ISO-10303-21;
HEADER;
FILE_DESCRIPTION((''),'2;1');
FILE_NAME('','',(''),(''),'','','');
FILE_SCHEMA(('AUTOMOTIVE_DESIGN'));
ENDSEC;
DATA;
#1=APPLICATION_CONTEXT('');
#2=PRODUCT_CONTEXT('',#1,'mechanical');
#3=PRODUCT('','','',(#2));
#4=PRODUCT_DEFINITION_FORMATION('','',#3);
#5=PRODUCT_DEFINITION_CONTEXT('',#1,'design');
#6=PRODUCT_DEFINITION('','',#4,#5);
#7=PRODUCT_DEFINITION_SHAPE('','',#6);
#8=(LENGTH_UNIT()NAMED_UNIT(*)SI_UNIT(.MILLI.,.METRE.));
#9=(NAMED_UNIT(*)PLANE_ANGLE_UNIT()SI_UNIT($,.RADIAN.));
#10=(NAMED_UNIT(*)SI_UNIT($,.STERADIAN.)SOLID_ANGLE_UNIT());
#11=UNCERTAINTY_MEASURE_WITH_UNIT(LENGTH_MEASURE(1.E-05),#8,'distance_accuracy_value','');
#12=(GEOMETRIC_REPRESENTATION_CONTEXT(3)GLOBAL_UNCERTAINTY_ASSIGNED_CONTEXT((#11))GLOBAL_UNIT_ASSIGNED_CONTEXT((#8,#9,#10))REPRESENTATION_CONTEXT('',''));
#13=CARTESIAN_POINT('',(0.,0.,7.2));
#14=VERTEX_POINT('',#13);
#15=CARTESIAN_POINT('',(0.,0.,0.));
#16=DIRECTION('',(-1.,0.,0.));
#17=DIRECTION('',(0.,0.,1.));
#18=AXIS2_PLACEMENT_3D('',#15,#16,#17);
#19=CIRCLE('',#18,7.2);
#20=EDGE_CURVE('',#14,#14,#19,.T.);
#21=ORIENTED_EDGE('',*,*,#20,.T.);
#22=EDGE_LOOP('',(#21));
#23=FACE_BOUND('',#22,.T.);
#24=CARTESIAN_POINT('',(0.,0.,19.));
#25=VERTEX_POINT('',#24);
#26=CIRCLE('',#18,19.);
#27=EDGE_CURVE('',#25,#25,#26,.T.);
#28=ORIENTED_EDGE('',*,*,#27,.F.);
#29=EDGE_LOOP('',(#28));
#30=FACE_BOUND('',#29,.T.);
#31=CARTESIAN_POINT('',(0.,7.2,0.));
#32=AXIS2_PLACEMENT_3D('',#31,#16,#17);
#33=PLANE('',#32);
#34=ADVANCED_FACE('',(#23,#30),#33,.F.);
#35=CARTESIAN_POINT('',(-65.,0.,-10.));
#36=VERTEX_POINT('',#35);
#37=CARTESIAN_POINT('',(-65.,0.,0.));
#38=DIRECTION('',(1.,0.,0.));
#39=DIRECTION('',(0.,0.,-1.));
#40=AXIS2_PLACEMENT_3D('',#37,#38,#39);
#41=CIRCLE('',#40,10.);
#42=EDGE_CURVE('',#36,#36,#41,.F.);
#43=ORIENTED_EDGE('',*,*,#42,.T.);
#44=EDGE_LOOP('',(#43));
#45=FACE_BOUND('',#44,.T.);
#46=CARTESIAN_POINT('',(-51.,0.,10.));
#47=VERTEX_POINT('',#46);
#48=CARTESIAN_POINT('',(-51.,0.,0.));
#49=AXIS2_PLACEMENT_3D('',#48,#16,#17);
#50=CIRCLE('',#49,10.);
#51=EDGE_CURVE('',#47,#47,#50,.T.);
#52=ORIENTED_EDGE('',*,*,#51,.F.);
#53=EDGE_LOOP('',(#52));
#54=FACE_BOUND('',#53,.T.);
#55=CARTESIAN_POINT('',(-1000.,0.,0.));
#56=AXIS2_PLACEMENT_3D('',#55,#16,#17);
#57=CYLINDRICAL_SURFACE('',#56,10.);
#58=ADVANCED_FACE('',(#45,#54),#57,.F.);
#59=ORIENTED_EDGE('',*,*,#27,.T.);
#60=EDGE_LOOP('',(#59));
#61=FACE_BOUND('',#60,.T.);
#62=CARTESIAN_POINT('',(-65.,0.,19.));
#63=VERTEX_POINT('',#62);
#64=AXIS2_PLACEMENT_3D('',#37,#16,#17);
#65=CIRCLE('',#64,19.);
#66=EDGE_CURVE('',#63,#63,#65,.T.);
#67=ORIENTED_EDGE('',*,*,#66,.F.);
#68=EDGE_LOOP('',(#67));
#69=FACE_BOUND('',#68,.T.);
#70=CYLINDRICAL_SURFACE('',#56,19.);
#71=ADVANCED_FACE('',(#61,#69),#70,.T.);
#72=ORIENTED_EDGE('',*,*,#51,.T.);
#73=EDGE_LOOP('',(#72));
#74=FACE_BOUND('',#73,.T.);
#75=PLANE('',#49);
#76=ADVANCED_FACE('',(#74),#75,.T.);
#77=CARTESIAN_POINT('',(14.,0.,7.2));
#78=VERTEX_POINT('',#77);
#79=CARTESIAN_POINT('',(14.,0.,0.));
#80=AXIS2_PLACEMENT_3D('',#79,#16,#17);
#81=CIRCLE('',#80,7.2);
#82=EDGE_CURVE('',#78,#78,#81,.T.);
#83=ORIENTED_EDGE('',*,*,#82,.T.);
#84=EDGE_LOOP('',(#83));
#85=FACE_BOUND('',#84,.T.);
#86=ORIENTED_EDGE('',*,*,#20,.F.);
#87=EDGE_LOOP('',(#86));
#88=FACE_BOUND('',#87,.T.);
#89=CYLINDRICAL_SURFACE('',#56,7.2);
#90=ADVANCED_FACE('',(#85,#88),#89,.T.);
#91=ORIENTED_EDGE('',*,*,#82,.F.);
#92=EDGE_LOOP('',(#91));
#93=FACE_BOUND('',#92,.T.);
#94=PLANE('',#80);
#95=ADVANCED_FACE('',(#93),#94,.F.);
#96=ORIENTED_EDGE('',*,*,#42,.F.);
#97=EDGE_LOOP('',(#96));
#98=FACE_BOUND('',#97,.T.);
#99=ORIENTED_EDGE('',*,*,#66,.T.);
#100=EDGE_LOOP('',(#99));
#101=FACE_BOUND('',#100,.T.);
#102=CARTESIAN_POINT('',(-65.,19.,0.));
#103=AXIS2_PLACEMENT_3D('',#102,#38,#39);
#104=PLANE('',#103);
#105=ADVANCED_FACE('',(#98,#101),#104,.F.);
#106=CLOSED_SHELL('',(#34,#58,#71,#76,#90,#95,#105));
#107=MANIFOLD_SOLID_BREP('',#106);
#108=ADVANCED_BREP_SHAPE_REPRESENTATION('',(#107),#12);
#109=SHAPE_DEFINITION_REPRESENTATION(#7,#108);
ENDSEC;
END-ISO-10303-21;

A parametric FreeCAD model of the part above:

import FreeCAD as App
import Part
import Sketcher

V = App.Vector


def add_polygon(sketch, points):
    """Adds a closed chain of lines whose ends are joined by coincident constraints."""
    first, n = sketch.GeometryCount, len(points)
    for a, b in zip(points, points[1:] + points[:1]):
        sketch.addGeometry(Part.LineSegment(App.Vector(*a, 0), App.Vector(*b, 0)), False)
    for i in range(n):
        sketch.addConstraint(Sketcher.Constraint("Coincident", first + i, 2, first + (i + 1) % n, 1))

doc = App.newDocument("Part")
body = doc.addObject("PartDesign::Body", "Body")

# Sketch on XY plane
sketch1 = doc.addObject("Sketcher::SketchObject", "Sketch")
body.addObject(sketch1)
sketch1.AttachmentSupport = (doc.XY_Plane, [""])
sketch1.MapMode = "FlatFace"
add_polygon(sketch1, [(14, 0), (14, 7.2), (0, 7.2), (0, 19), (-65, 19), (-65, 0)])  # lines 0-5
sketch1.addConstraint([
    Sketcher.Constraint("Vertical", 0),
    Sketcher.Constraint("Horizontal", 1),
    Sketcher.Constraint("Vertical", 2),
    Sketcher.Constraint("Horizontal", 3),
    Sketcher.Constraint("Vertical", 4),
    Sketcher.Constraint("Horizontal", 5),
    Sketcher.Constraint("PointOnObject", 1, 2, -2),
    Sketcher.Constraint("PointOnObject", 4, 2, -1),
    Sketcher.Constraint("DistanceX", 1, 2, 1, 1, 14.0),
    Sketcher.Constraint("DistanceX", 3, 2, 3, 1, 65.0),
    Sketcher.Constraint("DistanceY", 4, 2, 4, 1, 19.0),
    Sketcher.Constraint("DistanceY", 0, 1, 0, 2, 7.2),
])
revolution = doc.addObject("PartDesign::Revolution", "Revolution")
body.addObject(revolution)
revolution.Profile = sketch1
revolution.ReferenceAxis = (sketch1, ["H_Axis"])
revolution.Angle = 360

# Sketch on XY plane
sketch2 = doc.addObject("Sketcher::SketchObject", "Sketch001")
body.addObject(sketch2)
sketch2.AttachmentSupport = (doc.XY_Plane, [""])
sketch2.MapMode = "FlatFace"
add_polygon(sketch2, [(-66, 10), (-66, 0), (-51, 0), (-51, 10)])  # lines 0-3
sketch2.addConstraint([
    Sketcher.Constraint("Vertical", 0),
    Sketcher.Constraint("Horizontal", 1),
    Sketcher.Constraint("Vertical", 2),
    Sketcher.Constraint("Horizontal", 3),
    Sketcher.Constraint("PointOnObject", 0, 2, -1),
    Sketcher.Constraint("DistanceX", 1, 1, 1, 2, 15.0),
    Sketcher.Constraint("DistanceY", 0, 2, 0, 1, 10.0),
    Sketcher.Constraint("DistanceX", 0, 2, -1, 1, 66.0),
])
groove = doc.addObject("PartDesign::Groove", "Groove")
body.addObject(groove)
groove.Profile = sketch2
groove.ReferenceAxis = (sketch2, ["H_Axis"])
groove.Angle = 360

doc.recompute()
